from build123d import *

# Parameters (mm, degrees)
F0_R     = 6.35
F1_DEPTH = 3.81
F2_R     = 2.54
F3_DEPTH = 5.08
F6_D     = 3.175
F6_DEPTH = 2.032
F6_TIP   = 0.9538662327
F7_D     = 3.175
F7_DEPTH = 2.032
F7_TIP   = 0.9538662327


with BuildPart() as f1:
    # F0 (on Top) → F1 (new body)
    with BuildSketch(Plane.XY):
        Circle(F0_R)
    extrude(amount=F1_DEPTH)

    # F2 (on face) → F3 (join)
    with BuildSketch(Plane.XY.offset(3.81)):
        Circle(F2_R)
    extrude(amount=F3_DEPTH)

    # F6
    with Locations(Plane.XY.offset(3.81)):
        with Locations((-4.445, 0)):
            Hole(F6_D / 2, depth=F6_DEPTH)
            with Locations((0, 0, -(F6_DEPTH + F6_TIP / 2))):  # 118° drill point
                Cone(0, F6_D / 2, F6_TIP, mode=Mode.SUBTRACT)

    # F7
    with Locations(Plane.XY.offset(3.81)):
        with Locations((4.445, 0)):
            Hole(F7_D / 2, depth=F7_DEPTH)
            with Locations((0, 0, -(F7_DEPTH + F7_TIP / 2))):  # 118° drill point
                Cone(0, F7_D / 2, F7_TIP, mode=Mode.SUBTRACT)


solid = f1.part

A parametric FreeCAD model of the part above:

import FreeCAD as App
import Part
import Sketcher

V = App.Vector
Q = App.Units.Quantity

doc = App.newDocument("Part")
body = doc.addObject("PartDesign::Body", "Body")

# Sketch on XY plane
sketch1 = body.newObject("Sketcher::SketchObject", "Sketch")
sketch1.AttachmentSupport = (doc.getObject("XY_Plane"), [""])
sketch1.MapMode = "FlatFace"
sketch1.addGeometry(Part.Circle(V(0, 0, 0), V(0, 0, 1), 6), False)
sketch1.addConstraint(Sketcher.Constraint("Coincident", 0, 3, -1, 1))
sketch1.addConstraint(Sketcher.Constraint("Diameter", 0, Q("0.5 in")))
pad1 = body.newObject("PartDesign::Pad", "Pad")
pad1.Profile = sketch1
pad1.Length = Q("0.15 in")

# Sketch on XY plane
sketch2 = body.newObject("Sketcher::SketchObject", "Sketch001")
sketch2.AttachmentSupport = (doc.getObject("XY_Plane"), [""])
sketch2.MapMode = "FlatFace"
sketch2.AttachmentOffset = App.Placement(V(0, 0, 0.15 * 25.4), App.Rotation())
sketch2.addGeometry(Part.Circle(V(0, 0, 0), V(0, 0, 1), 2.5), False)
sketch2.addConstraint(Sketcher.Constraint("Coincident", 0, 3, -1, 1))
sketch2.addConstraint(Sketcher.Constraint("Diameter", 0, Q("0.2 in")))
pad2 = body.newObject("PartDesign::Pad", "Pad001")
pad2.Profile = sketch2
pad2.Length = Q("0.2 in")

# Sketch on XY plane
sketch3 = body.newObject("Sketcher::SketchObject", "Sketch002")
sketch3.AttachmentSupport = (doc.getObject("XY_Plane"), [""])
sketch3.MapMode = "FlatFace"
sketch3.AttachmentOffset = App.Placement(V(0, 0, 0.15 * 25.4), App.Rotation())
sketch3.addGeometry(Part.Circle(V(-4.4, 0, 0), V(0, 0, 1), 1.6), False)
sketch3.addConstraint(Sketcher.Constraint("PointOnObject", 0, 3, -1))
sketch3.addConstraint(Sketcher.Constraint("Diameter", 0, Q("0.125 in")))
sketch3.addConstraint(Sketcher.Constraint("DistanceX", 0, 3, -1, 1, Q("0.175 in")))
doc.recompute()
hole = body.newObject("PartDesign::Hole", "Hole")
hole.Profile = sketch3
hole.ThreadType = "None"
hole.Diameter = Q("0.125 in")
hole.DepthType = "Dimension"
hole.Depth = Q("0.08 in")
hole.DrillPoint = "Angled"
hole.DrillPointAngle = 118

# Sketch on XY plane
sketch4 = body.newObject("Sketcher::SketchObject", "Sketch003")
sketch4.AttachmentSupport = (doc.getObject("XY_Plane"), [""])
sketch4.MapMode = "FlatFace"
sketch4.AttachmentOffset = App.Placement(V(0, 0, 0.15 * 25.4), App.Rotation())
sketch4.addGeometry(Part.Circle(V(4.4, 0, 0), V(0, 0, 1), 1.6), False)
sketch4.addConstraint(Sketcher.Constraint("PointOnObject", 0, 3, -1))
sketch4.addConstraint(Sketcher.Constraint("Diameter", 0, Q("0.125 in")))
sketch4.addConstraint(Sketcher.Constraint("DistanceX", -1, 1, 0, 3, Q("0.175 in")))
doc.recompute()
hole2 = body.newObject("PartDesign::Hole", "Hole001")
hole2.Profile = sketch4
hole2.ThreadType = "None"
hole2.Diameter = Q("0.125 in")
hole2.DepthType = "Dimension"
hole2.Depth = Q("0.08 in")
hole2.DrillPoint = "Angled"
hole2.DrillPointAngle = 118

doc.recompute()
